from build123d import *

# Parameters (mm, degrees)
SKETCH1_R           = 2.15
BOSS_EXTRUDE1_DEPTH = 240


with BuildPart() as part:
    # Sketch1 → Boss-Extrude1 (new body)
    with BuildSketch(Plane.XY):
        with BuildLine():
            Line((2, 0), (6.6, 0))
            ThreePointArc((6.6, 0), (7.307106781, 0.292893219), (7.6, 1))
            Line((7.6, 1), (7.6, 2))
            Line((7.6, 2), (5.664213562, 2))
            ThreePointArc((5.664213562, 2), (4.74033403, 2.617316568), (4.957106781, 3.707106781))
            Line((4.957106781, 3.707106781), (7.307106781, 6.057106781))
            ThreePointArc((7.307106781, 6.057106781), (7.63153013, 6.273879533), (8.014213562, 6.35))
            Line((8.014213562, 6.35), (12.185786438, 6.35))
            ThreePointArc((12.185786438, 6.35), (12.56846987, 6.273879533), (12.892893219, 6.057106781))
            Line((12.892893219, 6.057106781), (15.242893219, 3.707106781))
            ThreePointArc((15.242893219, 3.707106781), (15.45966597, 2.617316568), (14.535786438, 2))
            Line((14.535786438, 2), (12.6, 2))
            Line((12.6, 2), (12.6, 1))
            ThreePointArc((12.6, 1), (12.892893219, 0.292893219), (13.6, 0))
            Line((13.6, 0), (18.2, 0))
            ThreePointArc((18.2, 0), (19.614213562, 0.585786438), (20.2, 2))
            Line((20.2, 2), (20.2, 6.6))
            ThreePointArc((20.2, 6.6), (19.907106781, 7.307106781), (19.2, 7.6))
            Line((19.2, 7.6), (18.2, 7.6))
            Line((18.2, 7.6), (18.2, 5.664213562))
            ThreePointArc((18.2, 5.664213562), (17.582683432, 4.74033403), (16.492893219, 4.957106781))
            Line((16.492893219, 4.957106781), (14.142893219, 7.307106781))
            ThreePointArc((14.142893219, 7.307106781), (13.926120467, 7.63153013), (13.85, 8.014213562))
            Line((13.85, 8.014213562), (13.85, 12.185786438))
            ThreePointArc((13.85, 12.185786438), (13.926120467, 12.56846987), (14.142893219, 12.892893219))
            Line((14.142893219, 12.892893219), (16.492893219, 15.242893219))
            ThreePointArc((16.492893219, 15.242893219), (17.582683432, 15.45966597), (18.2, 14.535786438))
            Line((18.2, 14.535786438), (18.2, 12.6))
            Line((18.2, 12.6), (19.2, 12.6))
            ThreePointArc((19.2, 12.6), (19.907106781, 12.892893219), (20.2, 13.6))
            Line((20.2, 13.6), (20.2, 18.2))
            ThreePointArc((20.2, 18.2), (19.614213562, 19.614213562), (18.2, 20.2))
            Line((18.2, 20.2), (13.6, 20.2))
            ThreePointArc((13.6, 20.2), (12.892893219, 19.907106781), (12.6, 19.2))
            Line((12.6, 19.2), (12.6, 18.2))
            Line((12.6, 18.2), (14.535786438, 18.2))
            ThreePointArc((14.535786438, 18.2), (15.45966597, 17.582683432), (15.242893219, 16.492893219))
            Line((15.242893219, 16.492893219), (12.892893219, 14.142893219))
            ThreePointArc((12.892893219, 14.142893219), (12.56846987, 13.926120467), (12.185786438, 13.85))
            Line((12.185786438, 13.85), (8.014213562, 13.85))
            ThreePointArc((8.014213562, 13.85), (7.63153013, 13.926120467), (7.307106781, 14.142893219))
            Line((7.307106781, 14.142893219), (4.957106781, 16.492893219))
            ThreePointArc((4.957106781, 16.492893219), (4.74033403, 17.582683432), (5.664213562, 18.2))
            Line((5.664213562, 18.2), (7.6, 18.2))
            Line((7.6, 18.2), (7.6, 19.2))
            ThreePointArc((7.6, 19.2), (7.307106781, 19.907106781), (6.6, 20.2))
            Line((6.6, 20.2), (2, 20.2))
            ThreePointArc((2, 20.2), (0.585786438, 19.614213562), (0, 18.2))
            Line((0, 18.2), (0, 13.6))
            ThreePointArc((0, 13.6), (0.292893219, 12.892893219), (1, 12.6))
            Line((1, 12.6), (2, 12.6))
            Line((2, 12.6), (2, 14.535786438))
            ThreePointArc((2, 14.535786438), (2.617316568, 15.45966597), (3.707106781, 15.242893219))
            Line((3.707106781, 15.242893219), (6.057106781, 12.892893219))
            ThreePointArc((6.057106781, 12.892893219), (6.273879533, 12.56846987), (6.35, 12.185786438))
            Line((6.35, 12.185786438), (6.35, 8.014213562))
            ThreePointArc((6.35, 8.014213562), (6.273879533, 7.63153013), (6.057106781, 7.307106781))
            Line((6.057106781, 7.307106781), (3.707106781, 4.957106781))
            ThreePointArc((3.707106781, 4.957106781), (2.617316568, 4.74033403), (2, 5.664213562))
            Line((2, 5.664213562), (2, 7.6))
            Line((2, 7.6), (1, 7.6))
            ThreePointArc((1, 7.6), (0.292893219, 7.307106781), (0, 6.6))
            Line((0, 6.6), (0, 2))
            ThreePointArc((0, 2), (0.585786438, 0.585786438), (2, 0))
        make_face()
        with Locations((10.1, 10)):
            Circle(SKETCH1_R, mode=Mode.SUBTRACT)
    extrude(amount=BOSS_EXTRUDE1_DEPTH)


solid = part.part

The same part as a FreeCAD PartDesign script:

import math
import FreeCAD as App
import Part
import Sketcher
from FreeCAD import Vector
Q = App.Units.Quantity

doc = App.newDocument("Part")
body = doc.addObject("PartDesign::Body", "Body")

# Sketch on XY plane
sketch1 = doc.addObject("Sketcher::SketchObject", "Sketch")
body.addObject(sketch1)
sketch1.AttachmentSupport = (doc.XY_Plane, [""])
sketch1.MapMode = "FlatFace"
sketch1.addGeometry([
    Part.LineSegment(Vector(2, 0, 0), Vector(6.6, 0, 0)),  # 0
    Part.ArcOfCircle(Part.Circle(Vector(6.6, 1, 0), Vector(0, 0, 1), 1), math.radians(-90), math.radians(0)),  # 1
    Part.LineSegment(Vector(7.6, 1, 0), Vector(7.6, 2, 0)),  # 2
    Part.LineSegment(Vector(7.6, 2, 0), Vector(5.664214, 2, 0)),  # 3
    Part.ArcOfCircle(Part.Circle(Vector(5.664214, 3, 0), Vector(0, 0, 1), 1), math.radians(135), math.radians(270)),  # 4
    Part.LineSegment(Vector(4.957107, 3.707107, 0), Vector(7.307107, 6.057107, 0)),  # 5
    Part.ArcOfCircle(Part.Circle(Vector(8.014214, 5.35, 0), Vector(0, 0, 1), 1), math.radians(90), math.radians(135)),  # 6
    Part.LineSegment(Vector(8.014214, 6.35, 0), Vector(12.185786, 6.35, 0)),  # 7
    Part.ArcOfCircle(Part.Circle(Vector(12.185786, 5.35, 0), Vector(0, 0, 1), 1), math.radians(45), math.radians(90)),  # 8
    Part.LineSegment(Vector(12.892893, 6.057107, 0), Vector(15.242893, 3.707107, 0)),  # 9
    Part.ArcOfCircle(Part.Circle(Vector(14.535786, 3, 0), Vector(0, 0, 1), 1), math.radians(-90), math.radians(45)),  # 10
    Part.LineSegment(Vector(14.535786, 2, 0), Vector(12.6, 2, 0)),  # 11
    Part.LineSegment(Vector(12.6, 2, 0), Vector(12.6, 1, 0)),  # 12
    Part.ArcOfCircle(Part.Circle(Vector(13.6, 1, 0), Vector(0, 0, 1), 1), math.radians(-180), math.radians(-90)),  # 13
    Part.LineSegment(Vector(13.6, 0, 0), Vector(18.2, 0, 0)),  # 14
    Part.ArcOfCircle(Part.Circle(Vector(18.2, 2, 0), Vector(0, 0, 1), 2), math.radians(-90), math.radians(0)),  # 15
    Part.LineSegment(Vector(20.2, 2, 0), Vector(20.2, 6.6, 0)),  # 16
    Part.ArcOfCircle(Part.Circle(Vector(19.2, 6.6, 0), Vector(0, 0, 1), 1), math.radians(0), math.radians(90)),  # 17
    Part.LineSegment(Vector(19.2, 7.6, 0), Vector(18.2, 7.6, 0)),  # 18
    Part.LineSegment(Vector(18.2, 7.6, 0), Vector(18.2, 5.664214, 0)),  # 19
    Part.ArcOfCircle(Part.Circle(Vector(17.2, 5.664214, 0), Vector(0, 0, 1), 1), math.radians(-135), math.radians(0)),  # 20
    Part.LineSegment(Vector(16.492893, 4.957107, 0), Vector(14.142893, 7.307107, 0)),  # 21
    Part.ArcOfCircle(Part.Circle(Vector(14.85, 8.014214, 0), Vector(0, 0, 1), 1), math.radians(180), math.radians(225)),  # 22
    Part.LineSegment(Vector(13.85, 8.014214, 0), Vector(13.85, 12.185786, 0)),  # 23
    Part.ArcOfCircle(Part.Circle(Vector(14.85, 12.185786, 0), Vector(0, 0, 1), 1), math.radians(135), math.radians(180)),  # 24
    Part.LineSegment(Vector(14.142893, 12.892893, 0), Vector(16.492893, 15.242893, 0)),  # 25
    Part.ArcOfCircle(Part.Circle(Vector(17.2, 14.535786, 0), Vector(0, 0, 1), 1), math.radians(0), math.radians(135)),  # 26
    Part.LineSegment(Vector(18.2, 14.535786, 0), Vector(18.2, 12.6, 0)),  # 27
    Part.LineSegment(Vector(18.2, 12.6, 0), Vector(19.2, 12.6, 0)),  # 28
    Part.ArcOfCircle(Part.Circle(Vector(19.2, 13.6, 0), Vector(0, 0, 1), 1), math.radians(-90), math.radians(0)),  # 29
    Part.LineSegment(Vector(20.2, 13.6, 0), Vector(20.2, 18.2, 0)),  # 30
    Part.ArcOfCircle(Part.Circle(Vector(18.2, 18.2, 0), Vector(0, 0, 1), 2), math.radians(0), math.radians(90)),  # 31
    Part.LineSegment(Vector(18.2, 20.2, 0), Vector(13.6, 20.2, 0)),  # 32
    Part.ArcOfCircle(Part.Circle(Vector(13.6, 19.2, 0), Vector(0, 0, 1), 1), math.radians(90), math.radians(180)),  # 33
    Part.LineSegment(Vector(12.6, 19.2, 0), Vector(12.6, 18.2, 0)),  # 34
    Part.LineSegment(Vector(12.6, 18.2, 0), Vector(14.535786, 18.2, 0)),  # 35
    Part.ArcOfCircle(Part.Circle(Vector(14.535786, 17.2, 0), Vector(0, 0, 1), 1), math.radians(-45), math.radians(90)),  # 36
    Part.LineSegment(Vector(15.242893, 16.492893, 0), Vector(12.892893, 14.142893, 0)),  # 37
    Part.ArcOfCircle(Part.Circle(Vector(12.185786, 14.85, 0), Vector(0, 0, 1), 1), math.radians(-90), math.radians(-45)),  # 38
    Part.LineSegment(Vector(12.185786, 13.85, 0), Vector(8.014214, 13.85, 0)),  # 39
    Part.ArcOfCircle(Part.Circle(Vector(8.014214, 14.85, 0), Vector(0, 0, 1), 1), math.radians(-135), math.radians(-90)),  # 40
    Part.LineSegment(Vector(7.307107, 14.142893, 0), Vector(4.957107, 16.492893, 0)),  # 41
    Part.ArcOfCircle(Part.Circle(Vector(5.664214, 17.2, 0), Vector(0, 0, 1), 1), math.radians(90), math.radians(225)),  # 42
    Part.LineSegment(Vector(5.664214, 18.2, 0), Vector(7.6, 18.2, 0)),  # 43
    Part.LineSegment(Vector(7.6, 18.2, 0), Vector(7.6, 19.2, 0)),  # 44
    Part.ArcOfCircle(Part.Circle(Vector(6.6, 19.2, 0), Vector(0, 0, 1), 1), math.radians(0), math.radians(90)),  # 45
    Part.LineSegment(Vector(6.6, 20.2, 0), Vector(2, 20.2, 0)),  # 46
    Part.ArcOfCircle(Part.Circle(Vector(2, 18.2, 0), Vector(0, 0, 1), 2), math.radians(90), math.radians(180)),  # 47
    Part.LineSegment(Vector(0, 18.2, 0), Vector(0, 13.6, 0)),  # 48
    Part.ArcOfCircle(Part.Circle(Vector(1, 13.6, 0), Vector(0, 0, 1), 1), math.radians(-180), math.radians(-90)),  # 49
    Part.LineSegment(Vector(1, 12.6, 0), Vector(2, 12.6, 0)),  # 50
    Part.LineSegment(Vector(2, 12.6, 0), Vector(2, 14.535786, 0)),  # 51
    Part.ArcOfCircle(Part.Circle(Vector(3, 14.535786, 0), Vector(0, 0, 1), 1), math.radians(45), math.radians(180)),  # 52
    Part.LineSegment(Vector(3.707107, 15.242893, 0), Vector(6.057107, 12.892893, 0)),  # 53
    Part.ArcOfCircle(Part.Circle(Vector(5.35, 12.185786, 0), Vector(0, 0, 1), 1), math.radians(0), math.radians(45)),  # 54
    Part.LineSegment(Vector(6.35, 12.185786, 0), Vector(6.35, 8.014214, 0)),  # 55
    Part.ArcOfCircle(Part.Circle(Vector(5.35, 8.014214, 0), Vector(0, 0, 1), 1), math.radians(-45), math.radians(0)),  # 56
    Part.LineSegment(Vector(6.057107, 7.307107, 0), Vector(3.707107, 4.957107, 0)),  # 57
    Part.ArcOfCircle(Part.Circle(Vector(3, 5.664214, 0), Vector(0, 0, 1), 1), math.radians(-180), math.radians(-45)),  # 58
    Part.LineSegment(Vector(2, 5.664214, 0), Vector(2, 7.6, 0)),  # 59
    Part.LineSegment(Vector(2, 7.6, 0), Vector(1, 7.6, 0)),  # 60
    Part.ArcOfCircle(Part.Circle(Vector(1, 6.6, 0), Vector(0, 0, 1), 1), math.radians(90), math.radians(180)),  # 61
    Part.LineSegment(Vector(0, 6.6, 0), Vector(0, 2, 0)),  # 62
    Part.ArcOfCircle(Part.Circle(Vector(2, 2, 0), Vector(0, 0, 1), 2), math.radians(-180), math.radians(-90)),  # 63
    Part.Circle(Vector(10.1, 10, 0), Vector(0, 0, 1), 2.15),  # 64
], False)
sketch1.addConstraint([
    Sketcher.Constraint("Tangent", 0, 2, 1, 1),
    Sketcher.Constraint("Tangent", 1, 2, 2, 1),
    Sketcher.Constraint("Coincident", 2, 2, 3, 1),
    Sketcher.Constraint("Tangent", 3, 2, 4, 2),
    Sketcher.Constraint("Tangent", 4, 1, 5, 1),
    Sketcher.Constraint("Tangent", 5, 2, 6, 2),
    Sketcher.Constraint("Tangent", 6, 1, 7, 1),
    Sketcher.Constraint("Tangent", 7, 2, 8, 2),
    Sketcher.Constraint("Tangent", 8, 1, 9, 1),
    Sketcher.Constraint("Tangent", 9, 2, 10, 2),
    Sketcher.Constraint("Tangent", 10, 1, 11, 1),
    Sketcher.Constraint("Coincident", 11, 2, 12, 1),
    Sketcher.Constraint("Tangent", 12, 2, 13, 1),
    Sketcher.Constraint("Tangent", 13, 2, 14, 1),
    Sketcher.Constraint("Tangent", 14, 2, 15, 1),
    Sketcher.Constraint("Tangent", 15, 2, 16, 1),
    Sketcher.Constraint("Tangent", 16, 2, 17, 1),
    Sketcher.Constraint("Tangent", 17, 2, 18, 1),
    Sketcher.Constraint("Coincident", 18, 2, 19, 1),
    Sketcher.Constraint("Tangent", 19, 2, 20, 2),
    Sketcher.Constraint("Tangent", 20, 1, 21, 1),
    Sketcher.Constraint("Tangent", 21, 2, 22, 2),
    Sketcher.Constraint("Tangent", 22, 1, 23, 1),
    Sketcher.Constraint("Tangent", 23, 2, 24, 2),
    Sketcher.Constraint("Tangent", 24, 1, 25, 1),
    Sketcher.Constraint("Tangent", 25, 2, 26, 2),
    Sketcher.Constraint("Tangent", 26, 1, 27, 1),
    Sketcher.Constraint("Coincident", 27, 2, 28, 1),
    Sketcher.Constraint("Tangent", 28, 2, 29, 1),
    Sketcher.Constraint("Tangent", 29, 2, 30, 1),
    Sketcher.Constraint("Tangent", 30, 2, 31, 1),
    Sketcher.Constraint("Tangent", 31, 2, 32, 1),
    Sketcher.Constraint("Tangent", 32, 2, 33, 1),
    Sketcher.Constraint("Tangent", 33, 2, 34, 1),
    Sketcher.Constraint("Coincident", 34, 2, 35, 1),
    Sketcher.Constraint("Tangent", 35, 2, 36, 2),
    Sketcher.Constraint("Tangent", 36, 1, 37, 1),
    Sketcher.Constraint("Tangent", 37, 2, 38, 2),
    Sketcher.Constraint("Tangent", 38, 1, 39, 1),
    Sketcher.Constraint("Tangent", 39, 2, 40, 2),
    Sketcher.Constraint("Tangent", 40, 1, 41, 1),
    Sketcher.Constraint("Tangent", 41, 2, 42, 2),
    Sketcher.Constraint("Tangent", 42, 1, 43, 1),
    Sketcher.Constraint("Coincident", 43, 2, 44, 1),
    Sketcher.Constraint("Tangent", 44, 2, 45, 1),
    Sketcher.Constraint("Tangent", 45, 2, 46, 1),
    Sketcher.Constraint("Tangent", 46, 2, 47, 1),
    Sketcher.Constraint("Tangent", 47, 2, 48, 1),
    Sketcher.Constraint("Tangent", 48, 2, 49, 1),
    Sketcher.Constraint("Tangent", 49, 2, 50, 1),
    Sketcher.Constraint("Coincident", 50, 2, 51, 1),
    Sketcher.Constraint("Tangent", 51, 2, 52, 2),
    Sketcher.Constraint("Tangent", 52, 1, 53, 1),
    Sketcher.Constraint("Tangent", 53, 2, 54, 2),
    Sketcher.Constraint("Tangent", 54, 1, 55, 1),
    Sketcher.Constraint("Tangent", 55, 2, 56, 2),
    Sketcher.Constraint("Tangent", 56, 1, 57, 1),
    Sketcher.Constraint("Tangent", 57, 2, 58, 2),
    Sketcher.Constraint("Tangent", 58, 1, 59, 1),
    Sketcher.Constraint("Coincident", 59, 2, 60, 1),
    Sketcher.Constraint("Tangent", 60, 2, 61, 1),
    Sketcher.Constraint("Tangent", 61, 2, 62, 1),
    Sketcher.Constraint("Tangent", 62, 2, 63, 1),
    Sketcher.Constraint("Tangent", 63, 2, 0, 1),
    Sketcher.Constraint("Horizontal", 0),
    Sketcher.Constraint("Vertical", 2),
    Sketcher.Constraint("Horizontal", 3),
    Sketcher.Constraint("Horizontal", 7),
    Sketcher.Constraint("Horizontal", 11),
    Sketcher.Constraint("Vertical", 12),
    Sketcher.Constraint("Horizontal", 14),
    Sketcher.Constraint("Vertical", 16),
    Sketcher.Constraint("Horizontal", 18),
    Sketcher.Constraint("Vertical", 19),
    Sketcher.Constraint("Vertical", 23),
    Sketcher.Constraint("Vertical", 27),
    Sketcher.Constraint("Horizontal", 28),
    Sketcher.Constraint("Vertical", 30),
    Sketcher.Constraint("Horizontal", 32),
    Sketcher.Constraint("Vertical", 34),
    Sketcher.Constraint("Horizontal", 35),
    Sketcher.Constraint("Horizontal", 39),
    Sketcher.Constraint("Horizontal", 43),
    Sketcher.Constraint("Vertical", 44),
    Sketcher.Constraint("Horizontal", 46),
    Sketcher.Constraint("Vertical", 48),
    Sketcher.Constraint("Horizontal", 50),
    Sketcher.Constraint("Vertical", 51),
    Sketcher.Constraint("Vertical", 55),
    Sketcher.Constraint("Vertical", 59),
    Sketcher.Constraint("Horizontal", 60),
    Sketcher.Constraint("Vertical", 62),
    Sketcher.Constraint("Equal", 1, 4),
    Sketcher.Constraint("Equal", 4, 6),
    Sketcher.Constraint("Equal", 6, 8),
    Sketcher.Constraint("Equal", 8, 10),
    Sketcher.Constraint("Equal", 10, 13),
    Sketcher.Constraint("Equal", 13, 17),
    Sketcher.Constraint("Equal", 17, 20),
    Sketcher.Constraint("Equal", 20, 22),
    Sketcher.Constraint("Equal", 22, 24),
    Sketcher.Constraint("Equal", 24, 26),
    Sketcher.Constraint("Equal", 26, 29),
    Sketcher.Constraint("Equal", 15, 31),
    Sketcher.Constraint("Equal", 29, 33),
    Sketcher.Constraint("Equal", 33, 36),
    Sketcher.Constraint("Equal", 36, 38),
    Sketcher.Constraint("Equal", 38, 40),
    Sketcher.Constraint("Equal", 40, 42),
    Sketcher.Constraint("Equal", 42, 45),
    Sketcher.Constraint("Equal", 31, 47),
    Sketcher.Constraint("Equal", 45, 49),
    Sketcher.Constraint("Equal", 49, 52),
    Sketcher.Constraint("Equal", 52, 54),
    Sketcher.Constraint("Equal", 54, 56),
    Sketcher.Constraint("Equal", 56, 58),
    Sketcher.Constraint("Equal", 58, 61),
    Sketcher.Constraint("Equal", 47, 63),
    Sketcher.Constraint("PointOnObject", 0, 2, -1),
    Sketcher.Constraint("PointOnObject", 13, 2, -1),
    Sketcher.Constraint("PointOnObject", 47, 2, -2),
    Sketcher.Constraint("PointOnObject", 61, 2, -2),
    Sketcher.Constraint("Perpendicular", 5, 9),
    Sketcher.Constraint("Parallel", 9, 21),
    Sketcher.Constraint("Perpendicular", 21, 25),
    Sketcher.Constraint("Parallel", 25, 37),
    Sketcher.Constraint("Perpendicular", 37, 41),
    Sketcher.Constraint("Parallel", 41, 53),
    Sketcher.Constraint("Perpendicular", 53, 57),
    Sketcher.Constraint("Horizontal", 4, 3, 10, 3),
    Sketcher.Constraint("Horizontal", 36, 3, 42, 3),
    Sketcher.Constraint("Horizontal", 33, 3, 45, 3),
    Sketcher.Constraint("Horizontal", 29, 3, 49, 3),
    Sketcher.Constraint("Horizontal", 26, 3, 52, 3),
    Sketcher.Constraint("Horizontal", 24, 3, 54, 3),
    Sketcher.Constraint("Horizontal", 22, 3, 56, 3),
    Sketcher.Constraint("Horizontal", 20, 3, 58, 3),
    Sketcher.Constraint("Horizontal", 17, 3, 61, 3),
    Sketcher.Constraint("Horizontal", 63, 3, 2, 2),
    Sketcher.Constraint("Horizontal", 5, 2, 8, 1),
    Sketcher.Constraint("Horizontal", 30, 2, 34, 2),
    Sketcher.Constraint("Vertical", 20, 3, 26, 3),
    Sketcher.Constraint("Vertical", 17, 3, 29, 3),
    Sketcher.Constraint("Vertical", 13, 3, 33, 3),
    Sketcher.Constraint("Vertical", 10, 3, 36, 3),
    Sketcher.Constraint("Vertical", 8, 3, 38, 3),
    Sketcher.Constraint("Vertical", 6, 3, 40, 3),
    Sketcher.Constraint("Vertical", 1, 3, 45, 3),
    Sketcher.Constraint("Vertical", 14, 2, 18, 2),
    Sketcher.Constraint("Vertical", 46, 2, 50, 2),
    Sketcher.Constraint("Equal", 3, 11),
    Sketcher.Constraint("Equal", 0, 14),
    Sketcher.Constraint("Equal", 46, 16),
    Sketcher.Constraint("Equal", 43, 19),
    Sketcher.Constraint("Equal", 39, 23),
    Sketcher.Constraint("Equal", 19, 27),
    Sketcher.Constraint("Equal", 16, 30),
    Sketcher.Constraint("Equal", 9, 21),
    Sketcher.Constraint("Radius", 1, Q("1 mm")),
    Sketcher.Constraint("Radius", 15, Q("2 mm")),
    Sketcher.Constraint("Diameter", 64, Q("4.3 mm")),
    Sketcher.Constraint("DistanceX", 0, 1, 0, 2, Q("4.6 mm")),
    Sketcher.Constraint("DistanceY", -1, 1, 64, 3, Q("10 mm")),
    Sketcher.Constraint("DistanceX", -1, 1, 13, 3, Q("13.6 mm")),
    Sketcher.Constraint("DistanceX", -1, 1, 64, 3, Q("10.1 mm")),
    Sketcher.Constraint("DistanceY", -1, 1, 6, 3, Q("5.35 mm")),
    Sketcher.Constraint("DistanceX", 3, 2, 3, 1, Q("1.935786 mm")),
])
pad1 = doc.addObject("PartDesign::Pad", "Pad")
body.addObject(pad1)
pad1.Profile = sketch1
pad1.Length = 240

doc.recompute()
